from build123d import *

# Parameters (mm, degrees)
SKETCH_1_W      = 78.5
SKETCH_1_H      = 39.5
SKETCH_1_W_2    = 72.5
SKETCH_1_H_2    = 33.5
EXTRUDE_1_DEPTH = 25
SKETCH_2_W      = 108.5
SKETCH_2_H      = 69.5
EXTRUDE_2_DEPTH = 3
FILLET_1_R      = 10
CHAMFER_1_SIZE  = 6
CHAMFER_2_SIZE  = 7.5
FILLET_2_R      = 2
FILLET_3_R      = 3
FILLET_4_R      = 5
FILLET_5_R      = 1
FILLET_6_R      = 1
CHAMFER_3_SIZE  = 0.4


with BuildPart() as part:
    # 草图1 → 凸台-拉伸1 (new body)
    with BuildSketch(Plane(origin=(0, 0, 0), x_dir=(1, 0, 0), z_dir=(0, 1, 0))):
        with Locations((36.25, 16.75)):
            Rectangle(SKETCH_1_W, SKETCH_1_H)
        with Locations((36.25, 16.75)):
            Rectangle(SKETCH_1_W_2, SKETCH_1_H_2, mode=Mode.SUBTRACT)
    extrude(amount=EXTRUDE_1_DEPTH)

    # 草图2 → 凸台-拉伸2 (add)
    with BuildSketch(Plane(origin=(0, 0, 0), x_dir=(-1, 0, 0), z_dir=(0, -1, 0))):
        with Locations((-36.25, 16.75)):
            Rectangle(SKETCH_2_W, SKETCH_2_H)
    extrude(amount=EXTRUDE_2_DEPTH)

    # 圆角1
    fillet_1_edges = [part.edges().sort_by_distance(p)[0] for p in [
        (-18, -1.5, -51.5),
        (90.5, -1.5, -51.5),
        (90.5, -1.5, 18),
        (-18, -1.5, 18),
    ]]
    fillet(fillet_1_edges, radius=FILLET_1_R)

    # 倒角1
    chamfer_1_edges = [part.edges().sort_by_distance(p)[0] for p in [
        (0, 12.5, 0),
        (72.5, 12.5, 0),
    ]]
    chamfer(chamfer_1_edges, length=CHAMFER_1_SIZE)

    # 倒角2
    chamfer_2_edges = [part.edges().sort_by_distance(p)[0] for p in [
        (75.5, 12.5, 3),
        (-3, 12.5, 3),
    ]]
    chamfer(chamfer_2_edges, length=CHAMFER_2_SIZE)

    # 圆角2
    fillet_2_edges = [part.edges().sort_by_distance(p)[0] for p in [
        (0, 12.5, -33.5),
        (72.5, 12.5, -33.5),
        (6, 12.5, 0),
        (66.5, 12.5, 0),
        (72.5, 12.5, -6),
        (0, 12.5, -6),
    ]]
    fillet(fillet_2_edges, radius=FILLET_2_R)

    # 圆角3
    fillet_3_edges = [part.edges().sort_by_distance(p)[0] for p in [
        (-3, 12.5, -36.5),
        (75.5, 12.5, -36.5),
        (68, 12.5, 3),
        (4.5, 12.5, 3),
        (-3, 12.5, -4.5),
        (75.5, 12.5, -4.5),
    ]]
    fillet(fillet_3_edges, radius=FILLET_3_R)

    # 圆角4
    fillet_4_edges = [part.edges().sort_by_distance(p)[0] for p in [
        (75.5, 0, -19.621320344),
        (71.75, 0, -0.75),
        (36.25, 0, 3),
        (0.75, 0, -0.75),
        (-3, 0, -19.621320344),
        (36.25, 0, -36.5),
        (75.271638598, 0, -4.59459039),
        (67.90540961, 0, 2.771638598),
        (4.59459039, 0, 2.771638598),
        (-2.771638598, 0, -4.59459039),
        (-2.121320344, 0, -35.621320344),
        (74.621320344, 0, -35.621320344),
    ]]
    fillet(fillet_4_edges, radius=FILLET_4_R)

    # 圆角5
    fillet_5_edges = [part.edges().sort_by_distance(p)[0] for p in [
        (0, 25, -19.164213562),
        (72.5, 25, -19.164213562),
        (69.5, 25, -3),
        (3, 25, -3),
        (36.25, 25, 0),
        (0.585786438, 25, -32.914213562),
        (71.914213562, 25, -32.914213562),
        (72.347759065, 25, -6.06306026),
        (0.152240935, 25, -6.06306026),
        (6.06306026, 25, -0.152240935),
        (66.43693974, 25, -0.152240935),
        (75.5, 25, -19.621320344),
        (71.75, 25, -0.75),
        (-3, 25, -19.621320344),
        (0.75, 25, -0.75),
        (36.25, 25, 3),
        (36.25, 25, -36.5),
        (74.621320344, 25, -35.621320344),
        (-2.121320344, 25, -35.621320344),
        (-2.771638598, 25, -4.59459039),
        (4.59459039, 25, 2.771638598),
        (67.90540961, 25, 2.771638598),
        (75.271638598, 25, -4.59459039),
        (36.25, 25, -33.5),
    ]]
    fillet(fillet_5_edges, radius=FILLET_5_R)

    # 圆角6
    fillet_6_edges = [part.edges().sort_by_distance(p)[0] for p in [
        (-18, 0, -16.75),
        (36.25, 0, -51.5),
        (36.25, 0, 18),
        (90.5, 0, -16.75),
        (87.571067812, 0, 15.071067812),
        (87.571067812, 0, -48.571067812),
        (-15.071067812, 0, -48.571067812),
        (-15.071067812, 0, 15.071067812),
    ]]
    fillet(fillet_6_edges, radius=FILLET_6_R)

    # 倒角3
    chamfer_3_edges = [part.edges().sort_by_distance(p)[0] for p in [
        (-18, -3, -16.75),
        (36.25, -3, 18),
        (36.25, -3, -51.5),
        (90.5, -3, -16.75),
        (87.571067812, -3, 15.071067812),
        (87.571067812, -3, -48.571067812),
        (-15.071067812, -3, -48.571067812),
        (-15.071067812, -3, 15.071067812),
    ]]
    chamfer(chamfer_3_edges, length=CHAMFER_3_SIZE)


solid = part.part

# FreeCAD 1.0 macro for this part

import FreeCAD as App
import Part
import Sketcher
from FreeCAD import Vector


def edges_at(feature, points):
    """Names of the edges that pass closest to the given points."""
    edges = feature.Shape.Edges
    near = lambda p: min(range(len(edges)), key=lambda i: edges[i].distToShape(Part.Vertex(*p))[0])
    return sorted({f"Edge{near(p) + 1}" for p in points})


def add_polygon(sketch, points):
    """Adds a closed chain of lines whose ends are joined by coincident constraints."""
    first, n = sketch.GeometryCount, len(points)
    for a, b in zip(points, points[1:] + points[:1]):
        sketch.addGeometry(Part.LineSegment(App.Vector(*a, 0), App.Vector(*b, 0)), False)
    for i in range(n):
        sketch.addConstraint(Sketcher.Constraint("Coincident", first + i, 2, first + (i + 1) % n, 1))

doc = App.newDocument("Part")
params = doc.addObject("Spreadsheet::Sheet", "Params")
for row, (alias, value) in enumerate([
    ("sketch1_width", "78.5 mm"),
    ("sketch1_width2", "72.5 mm"),
    ("sketch1_height", "39.5 mm"),
    ("sketch1_height2", "33.5 mm"),
    ("pad1_length", "25 mm"),
    ("sketch2_width", "108.5 mm"),
    ("sketch2_height", "69.5 mm"),
    ("pad2_length", "3 mm"),
    ("fillet_radius", "10 mm"),
    ("chamfer_size", "6 mm"),
    ("chamfer2_size", "7.5 mm"),
    ("fillet2_radius", "2 mm"),
    ("fillet3_radius", "3 mm"),
    ("fillet4_radius", "5 mm"),
    ("fillet5_radius", "1 mm"),
    ("fillet6_radius", "1 mm"),
    ("chamfer3_size", "0.4 mm"),
], start=1):
    params.set(f"A{row}", alias)
    params.set(f"B{row}", "=" + value)
    params.setAlias(f"B{row}", alias)

body = doc.addObject("PartDesign::Body", "Body")

# Sketch on XZ plane
sketch1 = doc.addObject("Sketcher::SketchObject", "Sketch")
body.addObject(sketch1)
sketch1.AttachmentSupport = (doc.XZ_Plane, [""])
sketch1.MapMode = "FlatFace"
add_polygon(sketch1, [(-3, -36), (-3, 3), (76, 3), (76, -36)])  # lines 0-3
add_polygon(sketch1, [(72, 0), (0, 0), (0, -34), (72, -34)])  # lines 4-7
sketch1.addConstraint(Sketcher.Constraint("Vertical", 0))
sketch1.addConstraint(Sketcher.Constraint("Horizontal", 1))
sketch1.addConstraint(Sketcher.Constraint("Vertical", 2))
sketch1.addConstraint(Sketcher.Constraint("Horizontal", 3))
sketch1.addConstraint(Sketcher.Constraint("Horizontal", 4))
sketch1.addConstraint(Sketcher.Constraint("Vertical", 5))
sketch1.addConstraint(Sketcher.Constraint("Horizontal", 6))
sketch1.addConstraint(Sketcher.Constraint("Vertical", 7))
sketch1.addConstraint(Sketcher.Constraint("Coincident", 4, 2, -1, 1))
sketch1.addConstraint(Sketcher.Constraint("DistanceX", 1, 1, 1, 2, 78.5))
sketch1.addConstraint(Sketcher.Constraint("DistanceX", 4, 2, 4, 1, 72.5))
sketch1.addConstraint(Sketcher.Constraint("DistanceY", 0, 1, 0, 2, 39.5))
sketch1.addConstraint(Sketcher.Constraint("DistanceY", 5, 2, 5, 1, 33.5))
sketch1.addConstraint(Sketcher.Constraint("DistanceX", 0, 2, -1, 1, 3.0))
sketch1.addConstraint(Sketcher.Constraint("DistanceY", -1, 1, 0, 2, 3.0))
sketch1.setExpression("Constraints[17]", "Params.sketch1_width")
sketch1.setExpression("Constraints[18]", "Params.sketch1_width2")
sketch1.setExpression("Constraints[19]", "Params.sketch1_height")
sketch1.setExpression("Constraints[20]", "Params.sketch1_height2")
pad1 = doc.addObject("PartDesign::Pad", "Pad")
body.addObject(pad1)
pad1.Profile = sketch1
pad1.setExpression("Length", "Params.pad1_length")
pad1.Reversed = True

# Sketch on XZ plane
sketch2 = doc.addObject("Sketcher::SketchObject", "Sketch001")
body.addObject(sketch2)
sketch2.AttachmentSupport = (doc.XZ_Plane, [""])
sketch2.MapMode = "FlatFace"
add_polygon(sketch2, [(90, -52), (90, 18), (-18, 18), (-18, -52)])  # lines 0-3
sketch2.addConstraint(Sketcher.Constraint("Vertical", 0))
sketch2.addConstraint(Sketcher.Constraint("Horizontal", 1))
sketch2.addConstraint(Sketcher.Constraint("Vertical", 2))
sketch2.addConstraint(Sketcher.Constraint("Horizontal", 3))
sketch2.addConstraint(Sketcher.Constraint("DistanceX", 1, 2, 1, 1, 108.5))
sketch2.addConstraint(Sketcher.Constraint("DistanceY", 0, 1, 0, 2, 69.5))
sketch2.addConstraint(Sketcher.Constraint("DistanceY", -1, 1, 0, 2, 18.0))
sketch2.addConstraint(Sketcher.Constraint("DistanceX", 1, 2, -1, 1, 18.0))
sketch2.setExpression("Constraints[8]", "Params.sketch2_width")
sketch2.setExpression("Constraints[9]", "Params.sketch2_height")
pad2 = doc.addObject("PartDesign::Pad", "Pad001")
body.addObject(pad2)
pad2.Profile = sketch2
pad2.setExpression("Length", "Params.pad2_length")
doc.recompute()

fillet = doc.addObject("PartDesign::Fillet", "Fillet")
body.addObject(fillet)
fillet.Base = (pad2, edges_at(pad2, [
    (-18, -1.5, -51.5),
    (90.5, -1.5, -51.5),
    (90.5, -1.5, 18),
    (-18, -1.5, 18),
]))
fillet.setExpression("Radius", "Params.fillet_radius")
doc.recompute()

chamfer = doc.addObject("PartDesign::Chamfer", "Chamfer")
body.addObject(chamfer)
chamfer.Base = (fillet, edges_at(fillet, [(0, 12.5, 0), (72.5, 12.5, 0)]))
chamfer.setExpression("Size", "Params.chamfer_size")
doc.recompute()

chamfer2 = doc.addObject("PartDesign::Chamfer", "Chamfer001")
body.addObject(chamfer2)
chamfer2.Base = (chamfer, edges_at(chamfer, [(75.5, 12.5, 3), (-3, 12.5, 3)]))
chamfer2.setExpression("Size", "Params.chamfer2_size")
doc.recompute()

fillet2 = doc.addObject("PartDesign::Fillet", "Fillet001")
body.addObject(fillet2)
fillet2.Base = (chamfer2, edges_at(chamfer2, [
    (0, 12.5, -33.5),
    (72.5, 12.5, -33.5),
    (6, 12.5, 0),
    (66.5, 12.5, 0),
    (72.5, 12.5, -6),
    (0, 12.5, -6),
]))
fillet2.setExpression("Radius", "Params.fillet2_radius")
doc.recompute()

fillet3 = doc.addObject("PartDesign::Fillet", "Fillet002")
body.addObject(fillet3)
fillet3.Base = (fillet2, edges_at(fillet2, [
    (-3, 12.5, -36.5),
    (75.5, 12.5, -36.5),
    (68, 12.5, 3),
    (4.5, 12.5, 3),
    (-3, 12.5, -4.5),
    (75.5, 12.5, -4.5),
]))
fillet3.setExpression("Radius", "Params.fillet3_radius")
doc.recompute()

fillet4 = doc.addObject("PartDesign::Fillet", "Fillet003")
body.addObject(fillet4)
fillet4.Base = (fillet3, edges_at(fillet3, [
    (75.5, 0, -19.621),
    (71.75, 0, -0.75),
    (36.25, 0, 3),
    (0.75, 0, -0.75),
    (-3, 0, -19.621),
    (36.25, 0, -36.5),
    (75.272, 0, -4.595),
    (67.905, 0, 2.772),
    (4.595, 0, 2.772),
    (-2.772, 0, -4.595),
    (-2.121, 0, -35.621),
    (74.621, 0, -35.621),
]))
fillet4.setExpression("Radius", "Params.fillet4_radius")
doc.recompute()

fillet5 = doc.addObject("PartDesign::Fillet", "Fillet004")
body.addObject(fillet5)
fillet5.Base = (fillet4, edges_at(fillet4, [
    (0, 25, -19.164),
    (72.5, 25, -19.164),
    (69.5, 25, -3),
    (3, 25, -3),
    (36.25, 25, 0),
    (0.586, 25, -32.914),
    (71.914, 25, -32.914),
    (72.348, 25, -6.063),
    (0.152, 25, -6.063),
    (6.063, 25, -0.152),
    (66.437, 25, -0.152),
    (75.5, 25, -19.621),
    (71.75, 25, -0.75),
    (-3, 25, -19.621),
    (0.75, 25, -0.75),
    (36.25, 25, 3),
    (36.25, 25, -36.5),
    (74.621, 25, -35.621),
    (-2.121, 25, -35.621),
    (-2.772, 25, -4.595),
    (4.595, 25, 2.772),
    (67.905, 25, 2.772),
    (75.272, 25, -4.595),
    (36.25, 25, -33.5),
]))
fillet5.setExpression("Radius", "Params.fillet5_radius")
doc.recompute()

fillet6 = doc.addObject("PartDesign::Fillet", "Fillet005")
body.addObject(fillet6)
fillet6.Base = (fillet5, edges_at(fillet5, [
    (-18, 0, -16.75),
    (36.25, 0, -51.5),
    (36.25, 0, 18),
    (90.5, 0, -16.75),
    (87.571, 0, 15.071),
    (87.571, 0, -48.571),
    (-15.071, 0, -48.571),
    (-15.071, 0, 15.071),
]))
fillet6.setExpression("Radius", "Params.fillet6_radius")
doc.recompute()

chamfer3 = doc.addObject("PartDesign::Chamfer", "Chamfer002")
body.addObject(chamfer3)
chamfer3.Base = (fillet6, edges_at(fillet6, [
    (-18, -3, -16.75),
    (36.25, -3, 18),
    (36.25, -3, -51.5),
    (90.5, -3, -16.75),
    (87.571, -3, 15.071),
    (87.571, -3, -48.571),
    (-15.071, -3, -48.571),
    (-15.071, -3, 15.071),
]))
chamfer3.setExpression("Size", "Params.chamfer3_size")

doc.recompute()
